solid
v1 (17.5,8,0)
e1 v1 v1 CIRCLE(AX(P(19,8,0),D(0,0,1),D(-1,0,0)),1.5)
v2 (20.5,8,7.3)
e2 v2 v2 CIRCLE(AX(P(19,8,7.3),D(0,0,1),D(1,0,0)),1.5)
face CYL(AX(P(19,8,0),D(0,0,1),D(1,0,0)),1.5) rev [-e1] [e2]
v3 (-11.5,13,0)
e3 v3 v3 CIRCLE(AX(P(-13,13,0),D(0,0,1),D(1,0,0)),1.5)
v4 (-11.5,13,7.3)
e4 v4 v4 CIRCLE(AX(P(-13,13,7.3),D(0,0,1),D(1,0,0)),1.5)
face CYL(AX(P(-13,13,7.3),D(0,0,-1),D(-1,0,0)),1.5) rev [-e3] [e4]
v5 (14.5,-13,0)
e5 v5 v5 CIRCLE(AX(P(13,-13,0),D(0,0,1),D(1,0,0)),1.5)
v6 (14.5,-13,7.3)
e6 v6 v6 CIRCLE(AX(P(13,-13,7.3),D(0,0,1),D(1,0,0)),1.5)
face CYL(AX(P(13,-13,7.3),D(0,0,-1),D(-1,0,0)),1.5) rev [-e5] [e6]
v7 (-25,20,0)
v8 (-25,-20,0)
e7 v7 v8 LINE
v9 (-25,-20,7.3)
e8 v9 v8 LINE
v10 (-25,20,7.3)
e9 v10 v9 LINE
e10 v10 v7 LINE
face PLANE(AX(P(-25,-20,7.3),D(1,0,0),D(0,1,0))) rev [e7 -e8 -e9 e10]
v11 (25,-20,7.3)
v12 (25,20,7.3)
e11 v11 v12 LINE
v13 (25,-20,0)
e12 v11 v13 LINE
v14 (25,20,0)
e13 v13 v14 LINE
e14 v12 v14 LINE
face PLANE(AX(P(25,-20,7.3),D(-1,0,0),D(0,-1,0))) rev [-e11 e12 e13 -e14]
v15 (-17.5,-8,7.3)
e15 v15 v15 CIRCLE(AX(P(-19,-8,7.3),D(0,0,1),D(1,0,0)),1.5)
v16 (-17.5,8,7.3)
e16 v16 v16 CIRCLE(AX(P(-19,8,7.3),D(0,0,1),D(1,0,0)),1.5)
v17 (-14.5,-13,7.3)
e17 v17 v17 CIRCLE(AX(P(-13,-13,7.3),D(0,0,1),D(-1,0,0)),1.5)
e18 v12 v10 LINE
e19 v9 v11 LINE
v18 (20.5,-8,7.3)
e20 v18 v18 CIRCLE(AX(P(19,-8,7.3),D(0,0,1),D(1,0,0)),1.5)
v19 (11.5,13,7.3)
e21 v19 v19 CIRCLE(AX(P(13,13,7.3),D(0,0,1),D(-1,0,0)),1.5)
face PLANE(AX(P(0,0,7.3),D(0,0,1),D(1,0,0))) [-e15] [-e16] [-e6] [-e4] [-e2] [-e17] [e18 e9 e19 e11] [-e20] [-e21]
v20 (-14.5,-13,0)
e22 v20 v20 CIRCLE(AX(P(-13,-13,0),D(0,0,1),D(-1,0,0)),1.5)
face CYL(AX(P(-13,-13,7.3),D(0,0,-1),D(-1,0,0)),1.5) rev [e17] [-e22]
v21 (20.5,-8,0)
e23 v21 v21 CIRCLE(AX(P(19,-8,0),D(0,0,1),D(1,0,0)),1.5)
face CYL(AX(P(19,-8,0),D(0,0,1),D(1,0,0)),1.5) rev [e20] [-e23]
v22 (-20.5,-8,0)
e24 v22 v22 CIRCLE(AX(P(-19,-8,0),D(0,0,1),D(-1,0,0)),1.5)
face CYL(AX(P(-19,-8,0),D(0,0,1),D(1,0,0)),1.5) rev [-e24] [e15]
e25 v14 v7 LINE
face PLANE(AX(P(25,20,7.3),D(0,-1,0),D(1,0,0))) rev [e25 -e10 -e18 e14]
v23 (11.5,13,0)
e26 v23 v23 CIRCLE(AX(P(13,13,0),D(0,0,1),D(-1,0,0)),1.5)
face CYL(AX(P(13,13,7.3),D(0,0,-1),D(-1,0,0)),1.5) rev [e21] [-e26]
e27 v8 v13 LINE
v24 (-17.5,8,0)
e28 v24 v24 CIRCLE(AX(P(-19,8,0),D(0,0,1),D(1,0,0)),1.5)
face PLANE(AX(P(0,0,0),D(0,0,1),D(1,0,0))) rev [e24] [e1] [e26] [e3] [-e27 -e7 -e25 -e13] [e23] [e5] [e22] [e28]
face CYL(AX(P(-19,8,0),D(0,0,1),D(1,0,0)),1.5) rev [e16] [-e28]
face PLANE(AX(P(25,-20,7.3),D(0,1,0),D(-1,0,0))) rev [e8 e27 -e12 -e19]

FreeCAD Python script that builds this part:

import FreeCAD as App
import Part
import Sketcher
from FreeCAD import Vector
Q = App.Units.Quantity

doc = App.newDocument("Part")
params = doc.addObject("Spreadsheet::Sheet", "Params")
for row, (alias, value) in enumerate([
    ("sketch1_diameter", "3 mm"),
    ("sketch1_width", "50 mm"),
    ("sketch1_height", "40 mm"),
    ("pad1_length", "7.3 mm"),
    ("sketch2_diameter", "3 mm"),
], start=1):
    params.set(f"A{row}", alias)
    params.set(f"B{row}", "=" + value)
    params.setAlias(f"B{row}", alias)

body = doc.addObject("PartDesign::Body", "Body")

sketch1 = doc.addObject("Sketcher::SketchObject", "Sketch")
body.addObject(sketch1)
sketch1.AttachmentSupport = (doc.XY_Plane, [""])
sketch1.MapMode = "FlatFace"
sketch1.addGeometry([
    Part.LineSegment(Vector(-25, 20, 0), Vector(-25, -20, 0)),
    Part.LineSegment(Vector(-25, -20, 0), Vector(25, -20, 0)),
    Part.LineSegment(Vector(25, -20, 0), Vector(25, 20, 0)),
    Part.LineSegment(Vector(25, 20, 0), Vector(-25, 20, 0)),
    Part.Circle(Vector(-13, -13, 0), Vector(0, 0, 1), 1.5),
    Part.Circle(Vector(13, -13, 0), Vector(0, 0, 1), 1.5),
    Part.Circle(Vector(-13, 13, 0), Vector(0, 0, 1), 1.5),
    Part.Circle(Vector(13, 13, 0), Vector(0, 0, 1), 1.5),
], False)
sketch1.addConstraint([
    Sketcher.Constraint("Coincident", 0, 2, 1, 1),
    Sketcher.Constraint("Coincident", 1, 2, 2, 1),
    Sketcher.Constraint("Coincident", 2, 2, 3, 1),
    Sketcher.Constraint("Coincident", 3, 2, 0, 1),
    Sketcher.Constraint("Vertical", 0),
    Sketcher.Constraint("Horizontal", 1),
    Sketcher.Constraint("Vertical", 2),
    Sketcher.Constraint("Horizontal", 3),
    Sketcher.Constraint("Equal", 4, 5),
    Sketcher.Constraint("Equal", 5, 6),
    Sketcher.Constraint("Equal", 6, 7),
    Sketcher.Constraint("Symmetric", 5, 3, 6, 3, -1, 1),
    Sketcher.Constraint("Symmetric", 4, 3, 7, 3, -1, 1),
    Sketcher.Constraint("Symmetric", 0, 2, 2, 2, -1, 1),
    Sketcher.Constraint("Symmetric", 4, 3, 5, 3, -2),
    Sketcher.Constraint("Diameter", 4, Q("3 mm")),
    Sketcher.Constraint("DistanceX", 1, 1, 1, 2, Q("50 mm")),
    Sketcher.Constraint("DistanceY", 0, 2, 0, 1, Q("40 mm")),
    Sketcher.Constraint("DistanceX", 4, 3, -1, 1, Q("13 mm")),
    Sketcher.Constraint("DistanceY", 4, 3, -1, 1, Q("13 mm")),
])
sketch1.setExpression("Constraints[15]", "Params.sketch1_diameter")
sketch1.setExpression("Constraints[16]", "Params.sketch1_width")
sketch1.setExpression("Constraints[17]", "Params.sketch1_height")
pad1 = doc.addObject("PartDesign::Pad", "Pad")
body.addObject(pad1)
pad1.Profile = sketch1
pad1.setExpression("Length", "Params.pad1_length")

sketch2 = doc.addObject("Sketcher::SketchObject", "Sketch001")
body.addObject(sketch2)
sketch2.AttachmentSupport = (doc.XY_Plane, [""])
sketch2.MapMode = "FlatFace"
sketch2.AttachmentOffset = App.Placement(Vector(0, 0, 7.3), App.Rotation())
sketch2.addGeometry([
    Part.Circle(Vector(-19, 8, 0), Vector(0, 0, 1), 1.5),
    Part.Circle(Vector(19, 8, 0), Vector(0, 0, 1), 1.5),
    Part.Circle(Vector(19, -8, 0), Vector(0, 0, 1), 1.5),
    Part.Circle(Vector(-19, -8, 0), Vector(0, 0, 1), 1.5),
], False)
sketch2.addConstraint([
    Sketcher.Constraint("Equal", 0, 1),
    Sketcher.Constraint("Equal", 1, 2),
    Sketcher.Constraint("Equal", 2, 3),
    Sketcher.Constraint("Symmetric", 0, 3, 2, 3, -1, 1),
    Sketcher.Constraint("Symmetric", 1, 3, 3, 3, -1, 1),
    Sketcher.Constraint("Symmetric", 0, 3, 1, 3, -2),
    Sketcher.Constraint("Diameter", 0, Q("3 mm")),
    Sketcher.Constraint("DistanceX", 0, 3, -1, 1, Q("19 mm")),
    Sketcher.Constraint("DistanceY", -1, 1, 0, 3, Q("8 mm")),
])
sketch2.setExpression("Constraints[6]", "Params.sketch2_diameter")
pocket1 = doc.addObject("PartDesign::Pocket", "Pocket")
body.addObject(pocket1)
pocket1.Profile = sketch2
pocket1.Type = "ThroughAll"
pocket1.Midplane = True

doc.recompute()
